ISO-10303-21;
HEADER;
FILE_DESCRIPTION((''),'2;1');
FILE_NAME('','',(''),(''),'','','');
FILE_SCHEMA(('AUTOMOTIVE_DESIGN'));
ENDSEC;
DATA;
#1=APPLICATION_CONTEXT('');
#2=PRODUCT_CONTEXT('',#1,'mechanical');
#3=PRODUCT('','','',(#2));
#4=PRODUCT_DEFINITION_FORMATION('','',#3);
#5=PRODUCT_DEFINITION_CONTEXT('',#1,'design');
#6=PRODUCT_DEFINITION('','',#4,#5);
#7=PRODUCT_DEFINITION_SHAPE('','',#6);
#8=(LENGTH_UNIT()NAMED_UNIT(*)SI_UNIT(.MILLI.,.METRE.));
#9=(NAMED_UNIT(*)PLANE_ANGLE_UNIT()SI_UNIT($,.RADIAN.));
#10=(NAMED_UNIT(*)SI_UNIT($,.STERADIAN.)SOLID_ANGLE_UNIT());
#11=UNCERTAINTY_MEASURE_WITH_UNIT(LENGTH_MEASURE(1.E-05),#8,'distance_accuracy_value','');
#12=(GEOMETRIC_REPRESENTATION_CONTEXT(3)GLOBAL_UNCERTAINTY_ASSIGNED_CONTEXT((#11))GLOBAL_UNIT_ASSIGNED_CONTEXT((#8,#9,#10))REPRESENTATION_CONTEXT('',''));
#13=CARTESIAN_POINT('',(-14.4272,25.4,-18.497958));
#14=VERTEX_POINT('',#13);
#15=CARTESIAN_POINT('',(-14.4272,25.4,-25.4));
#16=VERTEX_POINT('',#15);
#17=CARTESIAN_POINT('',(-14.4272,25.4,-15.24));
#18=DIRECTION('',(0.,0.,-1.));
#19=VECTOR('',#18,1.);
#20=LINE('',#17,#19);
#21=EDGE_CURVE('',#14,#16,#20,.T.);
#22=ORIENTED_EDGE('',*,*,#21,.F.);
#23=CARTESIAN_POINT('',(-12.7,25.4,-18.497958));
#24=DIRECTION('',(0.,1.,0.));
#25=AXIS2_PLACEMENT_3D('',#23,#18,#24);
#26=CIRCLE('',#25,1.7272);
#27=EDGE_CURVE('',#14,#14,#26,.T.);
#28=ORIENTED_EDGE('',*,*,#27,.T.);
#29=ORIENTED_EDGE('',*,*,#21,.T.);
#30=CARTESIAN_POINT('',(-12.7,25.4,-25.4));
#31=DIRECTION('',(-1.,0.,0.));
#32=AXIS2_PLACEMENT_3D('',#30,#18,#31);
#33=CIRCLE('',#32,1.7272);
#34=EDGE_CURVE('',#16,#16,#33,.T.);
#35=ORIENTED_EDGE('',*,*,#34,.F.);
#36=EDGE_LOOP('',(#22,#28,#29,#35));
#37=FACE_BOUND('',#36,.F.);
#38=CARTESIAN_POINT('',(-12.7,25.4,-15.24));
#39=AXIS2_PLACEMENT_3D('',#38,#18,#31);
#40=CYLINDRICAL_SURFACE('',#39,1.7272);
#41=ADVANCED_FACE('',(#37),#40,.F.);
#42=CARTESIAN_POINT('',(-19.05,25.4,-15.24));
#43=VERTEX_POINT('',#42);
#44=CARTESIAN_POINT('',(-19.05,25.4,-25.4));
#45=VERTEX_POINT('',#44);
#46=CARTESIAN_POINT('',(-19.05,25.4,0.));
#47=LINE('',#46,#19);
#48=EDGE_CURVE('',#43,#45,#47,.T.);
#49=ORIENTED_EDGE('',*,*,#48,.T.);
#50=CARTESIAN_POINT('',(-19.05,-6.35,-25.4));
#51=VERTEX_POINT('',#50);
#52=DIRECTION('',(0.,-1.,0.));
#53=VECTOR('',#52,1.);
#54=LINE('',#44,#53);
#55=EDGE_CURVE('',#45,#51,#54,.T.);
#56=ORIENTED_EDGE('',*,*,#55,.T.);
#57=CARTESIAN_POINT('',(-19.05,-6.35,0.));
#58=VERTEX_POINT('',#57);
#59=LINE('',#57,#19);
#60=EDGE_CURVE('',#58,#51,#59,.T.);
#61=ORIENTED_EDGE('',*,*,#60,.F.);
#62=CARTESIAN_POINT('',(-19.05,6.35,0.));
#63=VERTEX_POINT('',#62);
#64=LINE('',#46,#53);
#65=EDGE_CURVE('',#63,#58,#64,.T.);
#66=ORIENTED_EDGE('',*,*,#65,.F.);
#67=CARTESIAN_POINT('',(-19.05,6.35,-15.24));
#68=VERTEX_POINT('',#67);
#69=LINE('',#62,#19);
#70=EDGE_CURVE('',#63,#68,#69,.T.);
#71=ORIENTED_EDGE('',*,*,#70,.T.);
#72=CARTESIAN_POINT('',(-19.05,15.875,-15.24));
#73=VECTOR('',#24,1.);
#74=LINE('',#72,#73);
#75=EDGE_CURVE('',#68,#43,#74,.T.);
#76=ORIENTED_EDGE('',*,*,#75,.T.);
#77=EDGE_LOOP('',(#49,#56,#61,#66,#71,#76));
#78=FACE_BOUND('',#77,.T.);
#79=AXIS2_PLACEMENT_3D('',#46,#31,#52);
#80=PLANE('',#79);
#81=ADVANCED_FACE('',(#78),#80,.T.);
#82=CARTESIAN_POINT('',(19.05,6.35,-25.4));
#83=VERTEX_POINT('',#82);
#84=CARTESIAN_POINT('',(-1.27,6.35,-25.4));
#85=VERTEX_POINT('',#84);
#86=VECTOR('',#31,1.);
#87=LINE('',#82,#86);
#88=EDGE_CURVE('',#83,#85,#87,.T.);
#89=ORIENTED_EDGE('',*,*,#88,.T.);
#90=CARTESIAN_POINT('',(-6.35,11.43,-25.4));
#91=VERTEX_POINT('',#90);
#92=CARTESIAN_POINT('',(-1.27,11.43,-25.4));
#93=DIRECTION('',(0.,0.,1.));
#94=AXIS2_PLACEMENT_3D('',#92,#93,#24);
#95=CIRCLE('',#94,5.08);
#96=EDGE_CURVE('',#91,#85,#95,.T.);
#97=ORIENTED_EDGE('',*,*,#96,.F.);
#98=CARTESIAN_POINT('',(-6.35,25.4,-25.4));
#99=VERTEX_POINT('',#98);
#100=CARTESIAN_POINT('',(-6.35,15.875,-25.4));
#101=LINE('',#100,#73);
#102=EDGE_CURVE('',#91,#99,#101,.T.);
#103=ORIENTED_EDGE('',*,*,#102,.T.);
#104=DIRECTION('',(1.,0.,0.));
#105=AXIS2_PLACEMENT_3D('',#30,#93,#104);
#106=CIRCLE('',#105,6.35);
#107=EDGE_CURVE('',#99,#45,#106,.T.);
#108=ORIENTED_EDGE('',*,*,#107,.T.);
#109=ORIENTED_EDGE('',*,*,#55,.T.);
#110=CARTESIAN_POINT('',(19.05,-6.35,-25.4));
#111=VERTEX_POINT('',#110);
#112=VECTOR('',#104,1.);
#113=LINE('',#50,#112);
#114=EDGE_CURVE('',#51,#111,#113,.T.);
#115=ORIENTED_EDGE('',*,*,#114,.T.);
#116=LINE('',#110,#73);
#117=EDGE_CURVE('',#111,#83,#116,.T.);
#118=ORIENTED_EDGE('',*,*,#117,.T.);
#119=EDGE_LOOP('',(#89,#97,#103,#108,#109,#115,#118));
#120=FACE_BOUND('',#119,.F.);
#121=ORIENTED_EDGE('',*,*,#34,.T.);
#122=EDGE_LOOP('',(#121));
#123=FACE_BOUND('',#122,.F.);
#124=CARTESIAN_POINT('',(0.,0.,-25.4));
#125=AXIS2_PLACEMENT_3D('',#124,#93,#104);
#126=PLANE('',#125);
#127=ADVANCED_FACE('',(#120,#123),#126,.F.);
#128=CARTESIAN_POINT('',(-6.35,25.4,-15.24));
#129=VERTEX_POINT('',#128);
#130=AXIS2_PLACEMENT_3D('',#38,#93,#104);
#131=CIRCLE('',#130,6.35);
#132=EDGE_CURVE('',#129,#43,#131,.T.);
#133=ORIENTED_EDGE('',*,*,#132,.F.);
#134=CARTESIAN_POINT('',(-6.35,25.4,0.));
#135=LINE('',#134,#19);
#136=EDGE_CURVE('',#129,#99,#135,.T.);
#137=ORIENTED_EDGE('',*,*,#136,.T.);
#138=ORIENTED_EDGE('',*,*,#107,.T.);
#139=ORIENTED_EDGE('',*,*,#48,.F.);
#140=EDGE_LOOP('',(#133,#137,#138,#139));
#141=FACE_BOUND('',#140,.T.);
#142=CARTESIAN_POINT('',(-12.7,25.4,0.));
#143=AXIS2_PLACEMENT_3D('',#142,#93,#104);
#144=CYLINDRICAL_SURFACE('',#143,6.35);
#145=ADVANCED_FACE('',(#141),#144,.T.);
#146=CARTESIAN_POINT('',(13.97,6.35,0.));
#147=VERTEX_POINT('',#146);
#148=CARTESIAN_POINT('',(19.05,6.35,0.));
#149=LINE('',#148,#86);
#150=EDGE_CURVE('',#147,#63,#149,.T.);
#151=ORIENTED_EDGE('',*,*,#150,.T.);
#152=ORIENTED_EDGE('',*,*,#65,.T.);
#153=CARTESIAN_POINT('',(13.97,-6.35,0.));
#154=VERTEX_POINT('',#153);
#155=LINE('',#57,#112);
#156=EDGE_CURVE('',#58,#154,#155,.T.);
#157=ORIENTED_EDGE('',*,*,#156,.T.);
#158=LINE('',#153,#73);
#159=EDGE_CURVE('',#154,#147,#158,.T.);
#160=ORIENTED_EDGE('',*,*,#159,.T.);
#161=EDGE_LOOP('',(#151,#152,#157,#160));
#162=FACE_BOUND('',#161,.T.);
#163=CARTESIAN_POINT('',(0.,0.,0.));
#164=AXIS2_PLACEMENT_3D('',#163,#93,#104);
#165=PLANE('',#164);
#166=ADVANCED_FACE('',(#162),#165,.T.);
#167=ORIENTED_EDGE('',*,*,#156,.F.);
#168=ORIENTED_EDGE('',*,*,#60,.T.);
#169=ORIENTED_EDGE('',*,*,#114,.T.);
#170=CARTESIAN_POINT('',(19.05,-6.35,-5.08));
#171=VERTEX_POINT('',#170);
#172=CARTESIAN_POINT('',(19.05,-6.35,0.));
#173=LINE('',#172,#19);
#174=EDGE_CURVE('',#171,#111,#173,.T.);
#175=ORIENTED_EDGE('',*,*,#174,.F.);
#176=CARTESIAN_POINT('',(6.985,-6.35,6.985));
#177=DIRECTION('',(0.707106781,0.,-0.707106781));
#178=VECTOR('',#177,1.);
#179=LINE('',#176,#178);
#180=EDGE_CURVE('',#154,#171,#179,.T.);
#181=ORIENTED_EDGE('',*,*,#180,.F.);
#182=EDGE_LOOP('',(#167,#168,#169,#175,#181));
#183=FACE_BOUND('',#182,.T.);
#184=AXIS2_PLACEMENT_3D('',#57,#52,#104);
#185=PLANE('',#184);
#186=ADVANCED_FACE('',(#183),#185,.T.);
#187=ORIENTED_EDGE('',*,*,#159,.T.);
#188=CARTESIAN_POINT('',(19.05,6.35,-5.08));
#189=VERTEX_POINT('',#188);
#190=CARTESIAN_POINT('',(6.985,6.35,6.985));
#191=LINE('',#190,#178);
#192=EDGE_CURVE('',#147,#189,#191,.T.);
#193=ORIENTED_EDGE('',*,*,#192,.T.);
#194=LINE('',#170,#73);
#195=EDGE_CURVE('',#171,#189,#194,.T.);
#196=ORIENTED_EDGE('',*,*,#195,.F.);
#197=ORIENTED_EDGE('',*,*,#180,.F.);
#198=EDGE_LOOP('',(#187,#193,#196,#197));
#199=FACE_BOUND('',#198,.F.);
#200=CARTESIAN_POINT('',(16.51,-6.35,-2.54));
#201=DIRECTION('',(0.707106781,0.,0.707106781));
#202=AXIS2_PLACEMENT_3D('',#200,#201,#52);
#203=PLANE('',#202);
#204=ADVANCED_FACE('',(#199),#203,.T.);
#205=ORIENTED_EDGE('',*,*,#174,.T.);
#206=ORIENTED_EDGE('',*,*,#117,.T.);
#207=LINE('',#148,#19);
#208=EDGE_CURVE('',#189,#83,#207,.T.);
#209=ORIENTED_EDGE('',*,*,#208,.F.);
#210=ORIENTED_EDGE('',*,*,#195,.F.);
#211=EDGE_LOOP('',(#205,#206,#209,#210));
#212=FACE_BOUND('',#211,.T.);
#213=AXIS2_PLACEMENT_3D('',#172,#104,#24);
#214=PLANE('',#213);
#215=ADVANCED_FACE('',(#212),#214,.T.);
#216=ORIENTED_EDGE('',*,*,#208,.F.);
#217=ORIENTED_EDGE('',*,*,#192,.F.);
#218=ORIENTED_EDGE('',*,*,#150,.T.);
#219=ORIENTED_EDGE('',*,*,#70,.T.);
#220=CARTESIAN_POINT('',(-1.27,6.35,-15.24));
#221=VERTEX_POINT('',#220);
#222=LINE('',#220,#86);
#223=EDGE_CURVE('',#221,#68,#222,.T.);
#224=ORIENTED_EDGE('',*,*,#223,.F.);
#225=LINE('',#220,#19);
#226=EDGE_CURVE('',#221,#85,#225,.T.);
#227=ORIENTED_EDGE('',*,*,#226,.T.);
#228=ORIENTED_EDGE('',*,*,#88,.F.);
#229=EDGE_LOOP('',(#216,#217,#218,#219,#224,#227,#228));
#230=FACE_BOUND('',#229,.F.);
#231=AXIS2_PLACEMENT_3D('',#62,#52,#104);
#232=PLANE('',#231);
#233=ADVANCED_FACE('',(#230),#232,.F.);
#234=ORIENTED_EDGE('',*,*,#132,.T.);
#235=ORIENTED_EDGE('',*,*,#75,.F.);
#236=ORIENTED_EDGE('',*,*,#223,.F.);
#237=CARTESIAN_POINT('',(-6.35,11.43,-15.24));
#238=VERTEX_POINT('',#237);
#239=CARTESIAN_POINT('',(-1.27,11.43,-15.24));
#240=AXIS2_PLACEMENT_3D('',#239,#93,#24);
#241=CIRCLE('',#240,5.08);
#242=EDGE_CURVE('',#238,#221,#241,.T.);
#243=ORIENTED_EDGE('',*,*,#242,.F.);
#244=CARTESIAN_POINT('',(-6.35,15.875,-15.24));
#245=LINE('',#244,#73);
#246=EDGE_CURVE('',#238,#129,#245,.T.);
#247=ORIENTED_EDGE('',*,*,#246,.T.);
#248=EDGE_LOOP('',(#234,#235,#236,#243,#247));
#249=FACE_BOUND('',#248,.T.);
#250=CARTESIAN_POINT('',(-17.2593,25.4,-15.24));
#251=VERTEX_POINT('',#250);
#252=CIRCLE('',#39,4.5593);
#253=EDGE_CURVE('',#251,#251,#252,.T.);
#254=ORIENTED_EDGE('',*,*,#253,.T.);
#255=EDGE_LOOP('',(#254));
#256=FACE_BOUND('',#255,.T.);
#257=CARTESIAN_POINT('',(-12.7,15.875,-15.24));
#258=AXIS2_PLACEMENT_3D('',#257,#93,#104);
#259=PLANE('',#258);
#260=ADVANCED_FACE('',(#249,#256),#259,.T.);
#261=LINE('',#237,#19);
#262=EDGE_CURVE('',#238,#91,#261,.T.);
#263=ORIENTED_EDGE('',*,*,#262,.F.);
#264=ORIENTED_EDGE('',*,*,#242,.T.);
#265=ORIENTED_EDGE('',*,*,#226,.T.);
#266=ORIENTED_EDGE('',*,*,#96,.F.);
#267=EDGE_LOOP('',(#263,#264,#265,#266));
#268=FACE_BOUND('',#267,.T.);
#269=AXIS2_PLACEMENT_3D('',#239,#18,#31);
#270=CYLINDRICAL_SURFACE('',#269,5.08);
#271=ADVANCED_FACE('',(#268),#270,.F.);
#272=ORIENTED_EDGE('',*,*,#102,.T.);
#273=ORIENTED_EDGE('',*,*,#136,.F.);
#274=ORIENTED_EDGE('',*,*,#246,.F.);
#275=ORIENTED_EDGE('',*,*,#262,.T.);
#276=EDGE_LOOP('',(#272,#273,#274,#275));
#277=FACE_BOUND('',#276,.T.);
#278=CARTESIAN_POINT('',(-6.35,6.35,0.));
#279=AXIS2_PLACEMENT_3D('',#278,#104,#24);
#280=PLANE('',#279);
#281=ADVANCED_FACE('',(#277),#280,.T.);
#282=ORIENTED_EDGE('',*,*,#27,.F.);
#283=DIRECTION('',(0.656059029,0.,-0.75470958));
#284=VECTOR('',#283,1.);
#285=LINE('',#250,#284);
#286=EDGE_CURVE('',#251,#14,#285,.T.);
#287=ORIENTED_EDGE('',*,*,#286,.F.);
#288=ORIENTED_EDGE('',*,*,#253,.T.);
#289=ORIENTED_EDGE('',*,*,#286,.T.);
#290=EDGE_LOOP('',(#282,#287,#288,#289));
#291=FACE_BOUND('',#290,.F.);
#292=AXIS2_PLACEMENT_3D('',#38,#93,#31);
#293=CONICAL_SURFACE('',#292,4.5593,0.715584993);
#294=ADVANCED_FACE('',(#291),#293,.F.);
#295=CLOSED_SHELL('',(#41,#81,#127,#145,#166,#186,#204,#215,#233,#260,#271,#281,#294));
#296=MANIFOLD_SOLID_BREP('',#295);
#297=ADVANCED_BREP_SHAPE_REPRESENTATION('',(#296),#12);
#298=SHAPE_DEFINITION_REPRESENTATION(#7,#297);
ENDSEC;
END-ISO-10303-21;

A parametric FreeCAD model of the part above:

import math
import FreeCAD as App
import Part
import Sketcher

V = App.Vector
Q = App.Units.Quantity


def edges_at(feature, points):
    """Names of the edges that pass closest to the given points."""
    edges = feature.Shape.Edges
    near = lambda p: min(range(len(edges)), key=lambda i: edges[i].distToShape(Part.Vertex(*p))[0])
    return sorted({f"Edge{near(p) + 1}" for p in points})

doc = App.newDocument("Part")
body = doc.addObject("PartDesign::Body", "Body")

sketch1 = doc.addObject("Sketcher::SketchObject", "Sketch")
body.addObject(sketch1)
sketch1.AttachmentSupport = (doc.XY_Plane, [""])
sketch1.MapMode = "FlatFace"
sketch1.addGeometry([
    Part.LineSegment(V(-19, -6, 0), V(19, -6, 0)),
    Part.LineSegment(V(19, -6, 0), V(19, 6, 0)),
    Part.LineSegment(V(19, 6, 0), V(-6, 6, 0)),
    Part.LineSegment(V(-6, 6, 0), V(-6, 25, 0)),
    Part.ArcOfCircle(Part.Circle(V(-13, 25, 0), V(0, 0, 1), 6), math.radians(0), math.radians(180)),
    Part.LineSegment(V(-19, 25, 0), V(-19, -6, 0)),
], False)
sketch1.addConstraint([
    Sketcher.Constraint("Coincident", 0, 2, 1, 1),
    Sketcher.Constraint("Coincident", 1, 2, 2, 1),
    Sketcher.Constraint("Coincident", 2, 2, 3, 1),
    Sketcher.Constraint("Tangent", 3, 2, 4, 1),
    Sketcher.Constraint("Tangent", 4, 2, 5, 1),
    Sketcher.Constraint("Coincident", 5, 2, 0, 1),
    Sketcher.Constraint("Horizontal", 0),
    Sketcher.Constraint("Vertical", 1),
    Sketcher.Constraint("Horizontal", 2),
    Sketcher.Constraint("Vertical", 3),
    Sketcher.Constraint("Vertical", 5),
    Sketcher.Constraint("Symmetric", 1, 2, 5, 2, -1, 1),
    Sketcher.Constraint("DistanceX", 2, 2, 2, 1, Q("1 in")),
    Sketcher.Constraint("Radius", 4, Q("0.25 in")),
    Sketcher.Constraint("DistanceY", 1, 1, 1, 2, Q("0.5 in")),
    Sketcher.Constraint("DistanceY", -1, 1, 4, 3, Q("1 in")),
])
pad1 = doc.addObject("PartDesign::Pad", "Pad")
body.addObject(pad1)
pad1.Profile = sketch1
pad1.Length = Q("1 in")
pad1.Reversed = True

sketch2 = doc.addObject("Sketcher::SketchObject", "Sketch001")
body.addObject(sketch2)
sketch2.AttachmentSupport = (doc.XY_Plane, [""])
sketch2.MapMode = "FlatFace"
sketch2.addGeometry([
    Part.LineSegment(V(-19, 25, 0), V(-19, 6, 0)),
    Part.LineSegment(V(-19, 6, 0), V(-6, 6, 0)),
    Part.LineSegment(V(-6, 6, 0), V(-6, 25, 0)),
    Part.ArcOfCircle(Part.Circle(V(-13, 25, 0), V(0, 0, 1), 6), math.radians(0), math.radians(180)),
], False)
sketch2.addConstraint([
    Sketcher.Constraint("Coincident", 0, 2, 1, 1),
    Sketcher.Constraint("Coincident", 1, 2, 2, 1),
    Sketcher.Constraint("Tangent", 2, 2, 3, 1),
    Sketcher.Constraint("Tangent", 3, 2, 0, 1),
    Sketcher.Constraint("Vertical", 0),
    Sketcher.Constraint("Horizontal", 1),
    Sketcher.Constraint("Vertical", 2),
    Sketcher.Constraint("Radius", 3, Q("0.25 in")),
    Sketcher.Constraint("DistanceY", -1, 1, 3, 3, Q("1 in")),
    Sketcher.Constraint("DistanceY", 0, 2, 0, 1, Q("0.75 in")),
    Sketcher.Constraint("DistanceX", 3, 3, -1, 1, Q("0.5 in")),
])
pocket1 = doc.addObject("PartDesign::Pocket", "Pocket")
body.addObject(pocket1)
pocket1.Profile = sketch2
pocket1.Length = Q("0.6 in")

sketch3 = doc.addObject("Sketcher::SketchObject", "Sketch002")
body.addObject(sketch3)
sketch3.AttachmentSupport = (doc.XY_Plane, [""])
sketch3.MapMode = "FlatFace"
sketch3.AttachmentOffset = App.Placement(V(0, 0, -0.6 * 25.4), App.Rotation())
sketch3.addGeometry(Part.Circle(V(-12.7, 25.4, 0), V(0, 0, 1), 1.7), False)
sketch3.addConstraint([
    Sketcher.Constraint("Diameter", 0, Q("0.136 in")),
    Sketcher.Constraint("DistanceY", -1, 1, 0, 3, Q("1 in")),
    Sketcher.Constraint("DistanceX", 0, 3, -1, 1, Q("0.5 in")),
])
doc.recompute()
hole = doc.addObject("PartDesign::Hole", "Hole")
body.addObject(hole)
hole.Profile = sketch3
hole.ThreadType = "None"
hole.Diameter = Q("0.136 in")
hole.DepthType = "ThroughAll"
hole.HoleCutType = "Countersink"
hole.HoleCutDiameter = Q("0.359 in")
hole.HoleCutCountersinkAngle = 82
doc.recompute()

fillet = doc.addObject("PartDesign::Fillet", "Fillet")
body.addObject(fillet)
fillet.Base = (hole, edges_at(hole, [(-6.35, 6.35, -20.32)]))
fillet.Radius = Q("0.2 in")
doc.recompute()

chamfer = doc.addObject("PartDesign::Chamfer", "Chamfer")
body.addObject(chamfer)
chamfer.Base = (fillet, edges_at(fillet, [(19.05, 0, 0)]))
chamfer.Size = Q("0.2 in")

doc.recompute()
